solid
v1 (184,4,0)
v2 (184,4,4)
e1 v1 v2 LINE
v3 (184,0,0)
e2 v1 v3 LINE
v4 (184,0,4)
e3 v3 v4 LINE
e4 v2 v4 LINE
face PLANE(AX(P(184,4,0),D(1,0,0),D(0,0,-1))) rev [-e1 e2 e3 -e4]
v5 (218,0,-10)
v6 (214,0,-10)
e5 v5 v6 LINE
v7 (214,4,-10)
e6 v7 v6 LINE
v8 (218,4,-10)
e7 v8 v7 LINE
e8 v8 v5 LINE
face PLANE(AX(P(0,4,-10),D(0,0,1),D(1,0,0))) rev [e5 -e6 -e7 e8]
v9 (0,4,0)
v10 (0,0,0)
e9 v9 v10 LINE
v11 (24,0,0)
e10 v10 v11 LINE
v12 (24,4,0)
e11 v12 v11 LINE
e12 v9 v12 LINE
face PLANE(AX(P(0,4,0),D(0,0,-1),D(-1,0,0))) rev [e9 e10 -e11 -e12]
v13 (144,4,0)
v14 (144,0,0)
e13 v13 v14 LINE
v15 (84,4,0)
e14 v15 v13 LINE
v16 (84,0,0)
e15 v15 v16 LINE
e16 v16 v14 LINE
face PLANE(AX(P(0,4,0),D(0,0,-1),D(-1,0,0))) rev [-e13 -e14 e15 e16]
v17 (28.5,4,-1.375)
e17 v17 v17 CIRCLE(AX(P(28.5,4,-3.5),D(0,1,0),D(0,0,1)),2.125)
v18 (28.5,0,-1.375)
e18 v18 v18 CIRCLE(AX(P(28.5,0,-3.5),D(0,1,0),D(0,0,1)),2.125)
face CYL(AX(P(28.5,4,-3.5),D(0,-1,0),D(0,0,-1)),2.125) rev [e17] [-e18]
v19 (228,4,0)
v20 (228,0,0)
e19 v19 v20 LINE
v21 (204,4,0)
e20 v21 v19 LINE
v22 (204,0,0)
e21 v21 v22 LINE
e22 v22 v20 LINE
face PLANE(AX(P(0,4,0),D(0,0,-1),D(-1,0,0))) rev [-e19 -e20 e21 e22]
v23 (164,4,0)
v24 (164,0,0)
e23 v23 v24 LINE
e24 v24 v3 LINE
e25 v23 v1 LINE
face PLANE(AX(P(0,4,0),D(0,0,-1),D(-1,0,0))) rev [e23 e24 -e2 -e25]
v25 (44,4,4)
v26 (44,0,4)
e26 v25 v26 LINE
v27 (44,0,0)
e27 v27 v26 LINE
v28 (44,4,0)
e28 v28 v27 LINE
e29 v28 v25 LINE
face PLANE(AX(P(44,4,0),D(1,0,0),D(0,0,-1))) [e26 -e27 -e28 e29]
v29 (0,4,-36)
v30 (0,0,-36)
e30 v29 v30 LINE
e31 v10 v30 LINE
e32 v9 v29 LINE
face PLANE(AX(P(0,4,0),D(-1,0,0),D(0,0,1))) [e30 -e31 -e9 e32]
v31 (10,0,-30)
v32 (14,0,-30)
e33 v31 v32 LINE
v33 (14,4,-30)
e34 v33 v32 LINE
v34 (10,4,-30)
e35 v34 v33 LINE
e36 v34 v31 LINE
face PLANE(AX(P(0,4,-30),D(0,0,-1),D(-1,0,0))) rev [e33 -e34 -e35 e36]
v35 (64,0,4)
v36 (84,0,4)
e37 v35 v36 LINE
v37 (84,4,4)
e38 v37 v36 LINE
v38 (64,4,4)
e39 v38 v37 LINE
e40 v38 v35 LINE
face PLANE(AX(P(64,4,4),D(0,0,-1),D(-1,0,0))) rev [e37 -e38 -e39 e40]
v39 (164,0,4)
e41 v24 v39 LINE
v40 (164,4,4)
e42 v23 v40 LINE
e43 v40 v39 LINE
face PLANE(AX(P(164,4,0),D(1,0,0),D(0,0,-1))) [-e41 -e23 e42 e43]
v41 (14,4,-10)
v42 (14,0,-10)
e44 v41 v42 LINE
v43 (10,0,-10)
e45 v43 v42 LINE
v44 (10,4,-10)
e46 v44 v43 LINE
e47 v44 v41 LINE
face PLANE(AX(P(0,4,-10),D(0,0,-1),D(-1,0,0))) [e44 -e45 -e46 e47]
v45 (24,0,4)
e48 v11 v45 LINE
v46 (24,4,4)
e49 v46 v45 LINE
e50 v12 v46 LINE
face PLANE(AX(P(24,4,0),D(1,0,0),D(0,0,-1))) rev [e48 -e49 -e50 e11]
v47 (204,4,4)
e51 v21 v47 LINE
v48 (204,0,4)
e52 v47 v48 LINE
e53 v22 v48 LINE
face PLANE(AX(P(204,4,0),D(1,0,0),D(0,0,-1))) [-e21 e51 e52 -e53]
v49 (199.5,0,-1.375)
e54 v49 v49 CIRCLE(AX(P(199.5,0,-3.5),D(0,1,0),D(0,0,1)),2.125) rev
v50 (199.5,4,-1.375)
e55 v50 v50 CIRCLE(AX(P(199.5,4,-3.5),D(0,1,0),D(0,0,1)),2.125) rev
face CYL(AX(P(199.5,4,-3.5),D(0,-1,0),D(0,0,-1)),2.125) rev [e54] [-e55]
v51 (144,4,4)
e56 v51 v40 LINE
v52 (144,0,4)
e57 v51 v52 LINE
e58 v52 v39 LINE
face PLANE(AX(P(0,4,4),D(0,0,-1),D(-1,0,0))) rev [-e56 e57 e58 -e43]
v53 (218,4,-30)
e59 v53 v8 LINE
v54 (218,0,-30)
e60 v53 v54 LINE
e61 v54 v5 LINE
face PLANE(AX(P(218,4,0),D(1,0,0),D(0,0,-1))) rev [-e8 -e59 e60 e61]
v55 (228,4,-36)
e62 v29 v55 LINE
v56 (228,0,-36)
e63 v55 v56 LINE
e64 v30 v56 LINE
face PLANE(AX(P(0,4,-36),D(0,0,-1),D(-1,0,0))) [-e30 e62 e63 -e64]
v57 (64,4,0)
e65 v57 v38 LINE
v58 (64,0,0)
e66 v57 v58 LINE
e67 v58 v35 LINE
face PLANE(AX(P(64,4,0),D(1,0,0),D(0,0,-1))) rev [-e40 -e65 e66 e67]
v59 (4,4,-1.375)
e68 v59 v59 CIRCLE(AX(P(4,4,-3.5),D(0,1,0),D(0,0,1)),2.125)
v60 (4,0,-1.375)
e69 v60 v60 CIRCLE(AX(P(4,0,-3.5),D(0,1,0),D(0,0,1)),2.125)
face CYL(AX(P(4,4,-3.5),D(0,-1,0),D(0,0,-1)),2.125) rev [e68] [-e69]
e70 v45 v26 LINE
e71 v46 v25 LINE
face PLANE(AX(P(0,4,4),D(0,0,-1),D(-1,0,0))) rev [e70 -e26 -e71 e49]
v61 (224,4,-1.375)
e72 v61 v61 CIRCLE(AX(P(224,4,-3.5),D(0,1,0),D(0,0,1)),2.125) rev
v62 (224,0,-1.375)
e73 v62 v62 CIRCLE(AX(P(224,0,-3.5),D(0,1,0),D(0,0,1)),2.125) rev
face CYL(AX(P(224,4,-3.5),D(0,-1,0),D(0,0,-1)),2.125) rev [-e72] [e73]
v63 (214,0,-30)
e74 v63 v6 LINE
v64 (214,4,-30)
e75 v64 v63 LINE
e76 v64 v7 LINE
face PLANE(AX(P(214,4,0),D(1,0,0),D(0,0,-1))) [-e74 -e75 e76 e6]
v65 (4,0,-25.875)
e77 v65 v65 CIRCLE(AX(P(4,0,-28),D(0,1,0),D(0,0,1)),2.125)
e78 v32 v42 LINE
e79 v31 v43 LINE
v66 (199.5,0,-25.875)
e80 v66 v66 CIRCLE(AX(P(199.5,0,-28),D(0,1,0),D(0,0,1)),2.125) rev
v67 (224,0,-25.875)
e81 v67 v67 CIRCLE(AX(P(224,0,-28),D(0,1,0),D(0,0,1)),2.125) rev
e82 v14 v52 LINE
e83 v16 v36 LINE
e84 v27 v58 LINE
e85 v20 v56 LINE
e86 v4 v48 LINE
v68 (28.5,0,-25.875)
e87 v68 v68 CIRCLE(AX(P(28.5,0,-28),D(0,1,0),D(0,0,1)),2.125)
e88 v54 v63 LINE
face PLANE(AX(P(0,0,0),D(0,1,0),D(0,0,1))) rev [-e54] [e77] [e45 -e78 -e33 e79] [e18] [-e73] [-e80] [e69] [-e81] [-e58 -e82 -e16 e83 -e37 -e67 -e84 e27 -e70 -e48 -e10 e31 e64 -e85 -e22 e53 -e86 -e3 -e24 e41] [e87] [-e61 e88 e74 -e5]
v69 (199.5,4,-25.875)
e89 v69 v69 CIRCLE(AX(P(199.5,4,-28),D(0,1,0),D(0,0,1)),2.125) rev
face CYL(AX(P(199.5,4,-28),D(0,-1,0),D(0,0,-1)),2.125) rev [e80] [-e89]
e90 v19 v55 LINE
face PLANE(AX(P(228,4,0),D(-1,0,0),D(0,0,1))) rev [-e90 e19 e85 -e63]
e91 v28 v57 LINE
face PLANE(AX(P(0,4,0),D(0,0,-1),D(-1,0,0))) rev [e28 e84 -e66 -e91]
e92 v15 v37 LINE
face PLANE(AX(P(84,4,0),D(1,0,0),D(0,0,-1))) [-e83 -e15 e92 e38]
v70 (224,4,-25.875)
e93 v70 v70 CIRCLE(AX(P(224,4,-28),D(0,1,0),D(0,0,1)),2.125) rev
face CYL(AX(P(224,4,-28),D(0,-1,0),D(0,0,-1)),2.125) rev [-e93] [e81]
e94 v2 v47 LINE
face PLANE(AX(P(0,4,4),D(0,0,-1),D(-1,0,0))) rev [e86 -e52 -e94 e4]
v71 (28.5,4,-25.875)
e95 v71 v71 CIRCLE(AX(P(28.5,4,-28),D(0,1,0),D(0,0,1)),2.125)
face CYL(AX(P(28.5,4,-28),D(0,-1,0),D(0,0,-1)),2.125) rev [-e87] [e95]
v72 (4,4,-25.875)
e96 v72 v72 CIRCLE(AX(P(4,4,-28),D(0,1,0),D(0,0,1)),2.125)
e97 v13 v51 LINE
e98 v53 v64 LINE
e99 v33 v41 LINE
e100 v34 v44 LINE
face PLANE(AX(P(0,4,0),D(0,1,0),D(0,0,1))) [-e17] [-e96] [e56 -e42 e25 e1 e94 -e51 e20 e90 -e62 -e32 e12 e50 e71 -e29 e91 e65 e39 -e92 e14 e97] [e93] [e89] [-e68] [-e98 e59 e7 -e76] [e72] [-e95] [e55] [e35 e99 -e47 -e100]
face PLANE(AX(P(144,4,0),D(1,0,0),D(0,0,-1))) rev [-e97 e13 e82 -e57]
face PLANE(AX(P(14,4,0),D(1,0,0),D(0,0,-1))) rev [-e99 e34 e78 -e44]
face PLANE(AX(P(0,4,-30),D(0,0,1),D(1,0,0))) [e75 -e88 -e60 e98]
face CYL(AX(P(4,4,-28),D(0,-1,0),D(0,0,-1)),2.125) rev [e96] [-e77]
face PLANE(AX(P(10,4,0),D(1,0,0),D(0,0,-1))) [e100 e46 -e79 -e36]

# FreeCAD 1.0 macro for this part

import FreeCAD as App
import Part
import Sketcher
from FreeCAD import Vector
Q = App.Units.Quantity


def add_polygon(sketch, points):
    """Adds a closed chain of lines whose ends are joined by coincident constraints."""
    first, n = sketch.GeometryCount, len(points)
    for a, b in zip(points, points[1:] + points[:1]):
        sketch.addGeometry(Part.LineSegment(App.Vector(*a, 0), App.Vector(*b, 0)), False)
    for i in range(n):
        sketch.addConstraint(Sketcher.Constraint("Coincident", first + i, 2, first + (i + 1) % n, 1))

doc = App.newDocument("Part")
body = doc.addObject("PartDesign::Body", "Body")

# Sketch on XZ plane
sketch1 = body.newObject("Sketcher::SketchObject", "Sketch")
sketch1.AttachmentSupport = (doc.getObject("XZ_Plane"), [""])
sketch1.MapMode = "FlatFace"
add_polygon(sketch1, [(64, 0), (64, 4), (84, 4), (84, 0), (144, 0), (144, 4), (164, 4), (164, 0), (184, 0), (184, 4), (204, 4), (204, 0), (228, 0), (228, -36), (0, -36), (0, 0), (24, 0), (24, 4), (44, 4), (44, 0)])  # lines 0-19
sketch1.addGeometry(Part.Circle(Vector(4, -3.5, 0), Vector(0, 0, 1), 2.1), False)  # 20
sketch1.addGeometry(Part.Circle(Vector(28.5, -3.5, 0), Vector(0, 0, 1), 2.1), False)  # 21
sketch1.addGeometry(Part.Circle(Vector(199.5, -3.5, 0), Vector(0, 0, 1), 2.1), False)  # 22
sketch1.addGeometry(Part.Circle(Vector(224, -3.5, 0), Vector(0, 0, 1), 2.1), False)  # 23
add_polygon(sketch1, [(14, -10), (10, -10), (10, -30), (14, -30)])  # lines 24-27
sketch1.addGeometry(Part.Circle(Vector(4, -28, 0), Vector(0, 0, 1), 2.1), False)  # 28
sketch1.addGeometry(Part.Circle(Vector(28.5, -28, 0), Vector(0, 0, 1), 2.1), False)  # 29
add_polygon(sketch1, [(218, -10), (214, -10), (214, -30), (218, -30)])  # lines 30-33
sketch1.addGeometry(Part.Circle(Vector(199.5, -28, 0), Vector(0, 0, 1), 2.1), False)  # 34
sketch1.addGeometry(Part.Circle(Vector(224, -28, 0), Vector(0, 0, 1), 2.1), False)  # 35
sketch1.addConstraint([
    Sketcher.Constraint("Vertical", 0),
    Sketcher.Constraint("Horizontal", 1),
    Sketcher.Constraint("Vertical", 2),
    Sketcher.Constraint("Horizontal", 3),
    Sketcher.Constraint("Vertical", 4),
    Sketcher.Constraint("Horizontal", 5),
    Sketcher.Constraint("Vertical", 6),
    Sketcher.Constraint("Horizontal", 7),
    Sketcher.Constraint("Vertical", 8),
    Sketcher.Constraint("Horizontal", 9),
    Sketcher.Constraint("Vertical", 10),
    Sketcher.Constraint("Horizontal", 11),
    Sketcher.Constraint("Vertical", 12),
    Sketcher.Constraint("Horizontal", 13),
    Sketcher.Constraint("Vertical", 14),
    Sketcher.Constraint("Horizontal", 15),
    Sketcher.Constraint("Vertical", 16),
    Sketcher.Constraint("Horizontal", 17),
    Sketcher.Constraint("Vertical", 18),
    Sketcher.Constraint("Horizontal", 19),
    Sketcher.Constraint("Horizontal", 24),
    Sketcher.Constraint("Vertical", 25),
    Sketcher.Constraint("Horizontal", 26),
    Sketcher.Constraint("Vertical", 27),
    Sketcher.Constraint("Horizontal", 30),
    Sketcher.Constraint("Vertical", 31),
    Sketcher.Constraint("Horizontal", 32),
    Sketcher.Constraint("Vertical", 33),
    Sketcher.Constraint("Coincident", 14, 2, -1, 1),
    Sketcher.Constraint("Equal", 20, 21),
    Sketcher.Constraint("Equal", 21, 22),
    Sketcher.Constraint("Equal", 22, 23),
    Sketcher.Constraint("Equal", 23, 28),
    Sketcher.Constraint("Equal", 28, 29),
    Sketcher.Constraint("Equal", 29, 34),
    Sketcher.Constraint("Equal", 34, 35),
    Sketcher.Constraint("PointOnObject", 2, 2, -1),
    Sketcher.Constraint("PointOnObject", 6, 2, -1),
    Sketcher.Constraint("PointOnObject", 10, 2, -1),
    Sketcher.Constraint("PointOnObject", 18, 2, -1),
    Sketcher.Constraint("Horizontal", 20, 3, 21, 3),
    Sketcher.Constraint("Horizontal", 21, 3, 22, 3),
    Sketcher.Constraint("Horizontal", 22, 3, 23, 3),
    Sketcher.Constraint("Horizontal", 28, 3, 29, 3),
    Sketcher.Constraint("Horizontal", 29, 3, 34, 3),
    Sketcher.Constraint("Horizontal", 34, 3, 35, 3),
    Sketcher.Constraint("Horizontal", 1, 2, 4, 2),
    Sketcher.Constraint("Horizontal", 5, 2, 8, 2),
    Sketcher.Constraint("Horizontal", 9, 2, 16, 2),
    Sketcher.Constraint("Horizontal", 27, 2, 30, 2),
    Sketcher.Constraint("Horizontal", 26, 2, 31, 2),
    Sketcher.Constraint("Vertical", 20, 3, 28, 3),
    Sketcher.Constraint("Vertical", 21, 3, 29, 3),
    Sketcher.Constraint("Vertical", 22, 3, 34, 3),
    Sketcher.Constraint("Vertical", 23, 3, 35, 3),
    Sketcher.Constraint("Equal", 1, 5),
    Sketcher.Constraint("Equal", 5, 7),
    Sketcher.Constraint("Equal", 7, 9),
    Sketcher.Constraint("Equal", 11, 15),
    Sketcher.Constraint("Equal", 9, 17),
    Sketcher.Constraint("Equal", 17, 19),
    Sketcher.Constraint("Equal", 26, 30),
    Sketcher.Constraint("Equal", 32, 0),
    Sketcher.Constraint("Equal", 19, 25),
    Sketcher.Constraint("Diameter", 20, Q("4.25 mm")),
    Sketcher.Constraint("DistanceX", 1, 1, 1, 2, Q("20 mm")),
    Sketcher.Constraint("DistanceX", 3, 1, 3, 2, Q("60 mm")),
    Sketcher.Constraint("DistanceX", 11, 1, 11, 2, Q("24 mm")),
    Sketcher.Constraint("DistanceX", 24, 2, 24, 1, Q("4 mm")),
    Sketcher.Constraint("DistanceY", 12, 2, 12, 1, Q("36 mm")),
    Sketcher.Constraint("DistanceX", -1, 1, 20, 3, Q("4 mm")),
    Sketcher.Constraint("DistanceX", -1, 1, 23, 3, Q("224 mm")),
    Sketcher.Constraint("DistanceY", 28, 3, -1, 1, Q("28 mm")),
    Sketcher.Constraint("DistanceX", -1, 1, 24, 2, Q("10 mm")),
    Sketcher.Constraint("DistanceY", 24, 2, -1, 1, Q("10 mm")),
    Sketcher.Constraint("DistanceX", -1, 1, 30, 2, Q("214 mm")),
    Sketcher.Constraint("DistanceX", 21, 3, 22, 3, Q("171 mm")),
    Sketcher.Constraint("DistanceY", 20, 3, -1, 1, Q("3.5 mm")),
    Sketcher.Constraint("DistanceX", -1, 1, 21, 3, Q("28.5 mm")),
])
pad1 = body.newObject("PartDesign::Pad", "Pad")
pad1.Profile = sketch1
pad1.Length = 4
pad1.Reversed = True

doc.recompute()
